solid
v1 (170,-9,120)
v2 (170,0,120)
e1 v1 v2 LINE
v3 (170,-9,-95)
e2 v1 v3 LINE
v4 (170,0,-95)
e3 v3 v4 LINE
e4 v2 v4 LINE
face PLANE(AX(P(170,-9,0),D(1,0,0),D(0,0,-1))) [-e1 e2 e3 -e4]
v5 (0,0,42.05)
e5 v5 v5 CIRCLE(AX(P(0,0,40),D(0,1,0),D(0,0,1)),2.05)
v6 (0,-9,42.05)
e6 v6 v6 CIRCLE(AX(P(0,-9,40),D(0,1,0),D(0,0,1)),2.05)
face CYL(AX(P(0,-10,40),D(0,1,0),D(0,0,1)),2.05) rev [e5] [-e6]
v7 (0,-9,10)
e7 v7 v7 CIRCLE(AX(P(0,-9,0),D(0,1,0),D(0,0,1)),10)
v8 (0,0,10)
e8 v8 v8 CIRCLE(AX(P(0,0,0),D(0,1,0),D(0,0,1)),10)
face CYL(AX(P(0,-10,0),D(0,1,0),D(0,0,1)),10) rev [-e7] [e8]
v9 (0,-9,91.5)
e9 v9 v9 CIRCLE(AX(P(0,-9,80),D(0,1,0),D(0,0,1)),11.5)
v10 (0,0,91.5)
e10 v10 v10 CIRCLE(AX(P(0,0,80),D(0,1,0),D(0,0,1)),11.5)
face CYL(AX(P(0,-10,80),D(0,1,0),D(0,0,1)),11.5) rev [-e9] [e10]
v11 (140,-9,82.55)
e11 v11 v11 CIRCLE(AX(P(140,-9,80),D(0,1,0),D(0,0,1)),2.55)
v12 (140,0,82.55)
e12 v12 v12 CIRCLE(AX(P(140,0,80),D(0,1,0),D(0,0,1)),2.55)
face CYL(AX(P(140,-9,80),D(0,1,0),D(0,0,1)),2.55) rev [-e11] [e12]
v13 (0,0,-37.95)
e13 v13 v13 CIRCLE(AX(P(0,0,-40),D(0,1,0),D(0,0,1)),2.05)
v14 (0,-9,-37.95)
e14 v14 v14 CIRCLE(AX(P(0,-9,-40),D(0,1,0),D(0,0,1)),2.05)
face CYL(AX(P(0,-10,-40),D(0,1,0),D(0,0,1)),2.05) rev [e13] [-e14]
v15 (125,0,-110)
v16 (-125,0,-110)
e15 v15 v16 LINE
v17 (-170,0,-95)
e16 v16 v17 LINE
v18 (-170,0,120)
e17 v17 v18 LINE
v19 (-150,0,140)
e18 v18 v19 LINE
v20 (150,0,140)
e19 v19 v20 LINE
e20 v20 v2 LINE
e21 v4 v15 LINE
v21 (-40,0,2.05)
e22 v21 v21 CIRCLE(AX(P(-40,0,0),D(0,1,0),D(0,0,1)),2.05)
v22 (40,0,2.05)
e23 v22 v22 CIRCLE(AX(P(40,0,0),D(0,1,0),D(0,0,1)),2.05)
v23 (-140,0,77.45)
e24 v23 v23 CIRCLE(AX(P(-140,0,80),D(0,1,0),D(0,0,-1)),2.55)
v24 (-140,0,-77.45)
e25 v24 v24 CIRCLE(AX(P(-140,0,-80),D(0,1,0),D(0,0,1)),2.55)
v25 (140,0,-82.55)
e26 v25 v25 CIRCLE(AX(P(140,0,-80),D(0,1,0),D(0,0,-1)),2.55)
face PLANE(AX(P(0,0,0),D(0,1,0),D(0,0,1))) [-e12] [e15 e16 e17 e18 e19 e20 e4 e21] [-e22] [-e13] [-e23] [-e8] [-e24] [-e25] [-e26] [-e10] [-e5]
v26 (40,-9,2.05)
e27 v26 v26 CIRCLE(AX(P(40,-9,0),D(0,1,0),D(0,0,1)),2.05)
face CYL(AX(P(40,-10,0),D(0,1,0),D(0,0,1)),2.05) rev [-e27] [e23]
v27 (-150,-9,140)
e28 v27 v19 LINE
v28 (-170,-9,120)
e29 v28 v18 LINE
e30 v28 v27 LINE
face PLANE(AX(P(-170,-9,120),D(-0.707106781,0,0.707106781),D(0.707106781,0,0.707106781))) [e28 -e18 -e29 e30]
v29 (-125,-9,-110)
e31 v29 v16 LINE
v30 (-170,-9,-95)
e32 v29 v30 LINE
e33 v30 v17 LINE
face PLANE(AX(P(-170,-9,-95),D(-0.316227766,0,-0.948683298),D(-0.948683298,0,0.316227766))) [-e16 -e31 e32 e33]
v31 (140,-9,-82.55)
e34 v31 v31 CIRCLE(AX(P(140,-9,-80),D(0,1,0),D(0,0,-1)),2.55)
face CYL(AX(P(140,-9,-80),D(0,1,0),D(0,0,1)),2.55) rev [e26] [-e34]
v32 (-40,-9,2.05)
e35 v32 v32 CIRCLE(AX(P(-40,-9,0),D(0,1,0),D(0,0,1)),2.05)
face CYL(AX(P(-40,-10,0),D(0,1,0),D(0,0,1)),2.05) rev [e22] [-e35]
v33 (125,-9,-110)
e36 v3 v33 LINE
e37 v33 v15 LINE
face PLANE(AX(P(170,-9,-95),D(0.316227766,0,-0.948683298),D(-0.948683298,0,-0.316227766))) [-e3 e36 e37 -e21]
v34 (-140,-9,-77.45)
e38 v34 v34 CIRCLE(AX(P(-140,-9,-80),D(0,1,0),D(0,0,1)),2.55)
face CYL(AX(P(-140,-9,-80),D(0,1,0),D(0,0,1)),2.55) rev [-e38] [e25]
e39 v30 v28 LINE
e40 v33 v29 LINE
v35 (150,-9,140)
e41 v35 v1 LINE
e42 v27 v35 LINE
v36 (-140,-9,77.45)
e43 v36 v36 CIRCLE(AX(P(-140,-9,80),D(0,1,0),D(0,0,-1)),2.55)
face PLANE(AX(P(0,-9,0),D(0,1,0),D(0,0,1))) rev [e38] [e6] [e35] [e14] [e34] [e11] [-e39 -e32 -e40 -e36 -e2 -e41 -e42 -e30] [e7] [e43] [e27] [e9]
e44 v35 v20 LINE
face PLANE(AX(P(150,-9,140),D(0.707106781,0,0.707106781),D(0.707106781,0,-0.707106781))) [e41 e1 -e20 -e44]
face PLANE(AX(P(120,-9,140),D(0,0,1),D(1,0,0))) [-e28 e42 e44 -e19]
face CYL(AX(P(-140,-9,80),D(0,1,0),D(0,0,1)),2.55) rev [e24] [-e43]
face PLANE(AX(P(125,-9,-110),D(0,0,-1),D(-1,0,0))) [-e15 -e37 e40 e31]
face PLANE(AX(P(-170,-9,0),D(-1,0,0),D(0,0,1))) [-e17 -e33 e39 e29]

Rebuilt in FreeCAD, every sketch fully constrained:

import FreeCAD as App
import Part
import Sketcher

V = App.Vector
Q = App.Units.Quantity


def add_polygon(sketch, points):
    """Adds a closed chain of lines whose ends are joined by coincident constraints."""
    first, n = sketch.GeometryCount, len(points)
    for a, b in zip(points, points[1:] + points[:1]):
        sketch.addGeometry(Part.LineSegment(App.Vector(*a, 0), App.Vector(*b, 0)), False)
    for i in range(n):
        sketch.addConstraint(Sketcher.Constraint("Coincident", first + i, 2, first + (i + 1) % n, 1))

doc = App.newDocument("Part")
body = doc.addObject("PartDesign::Body", "Body")

sketch1 = body.newObject("Sketcher::SketchObject", "Sketch")
sketch1.AttachmentSupport = (doc.getObject("XZ_Plane"), [""])
sketch1.MapMode = "FlatFace"
add_polygon(sketch1, [(125, -110), (-125, -110), (-170, -95), (-170, 120), (-150, 140), (150, 140), (170, 120), (170, -95)])
sketch1.addGeometry(Part.Circle(V(-140, 80, 0), V(0, 0, 1), 2.5), False)
sketch1.addGeometry(Part.Circle(V(140, 80, 0), V(0, 0, 1), 2.5), False)
sketch1.addGeometry(Part.Circle(V(-140, -80, 0), V(0, 0, 1), 2.5), False)
sketch1.addGeometry(Part.Circle(V(140, -80, 0), V(0, 0, 1), 2.5), False)
sketch1.addConstraint(Sketcher.Constraint("Horizontal", 0))
sketch1.addConstraint(Sketcher.Constraint("Vertical", 2))
sketch1.addConstraint(Sketcher.Constraint("Horizontal", 4))
sketch1.addConstraint(Sketcher.Constraint("Vertical", 6))
sketch1.addConstraint(Sketcher.Constraint("Equal", 8, 9))
sketch1.addConstraint(Sketcher.Constraint("Equal", 9, 10))
sketch1.addConstraint(Sketcher.Constraint("Equal", 10, 11))
sketch1.addConstraint(Sketcher.Constraint("Symmetric", 9, 3, 10, 3, -1, 1))
sketch1.addConstraint(Sketcher.Constraint("Symmetric", 8, 3, 11, 3, -1, 1))
sketch1.addConstraint(Sketcher.Constraint("Symmetric", 8, 3, 9, 3, -2))
sketch1.addConstraint(Sketcher.Constraint("Symmetric", 2, 2, 5, 2, -2))
sketch1.addConstraint(Sketcher.Constraint("Perpendicular", 3, 5))
sketch1.addConstraint(Sketcher.Constraint("Horizontal", 1, 2, 6, 2))
sketch1.addConstraint(Sketcher.Constraint("Equal", 3, 5))
sketch1.addConstraint(Sketcher.Constraint("Equal", 1, 7))
sketch1.addConstraint(Sketcher.Constraint("Diameter", 8, Q("5.1 mm")))
sketch1.addConstraint(Sketcher.Constraint("DistanceX", 0, 2, 0, 1, Q("250 mm")))
sketch1.addConstraint(Sketcher.Constraint("DistanceX", 4, 1, 4, 2, Q("300 mm")))
sketch1.addConstraint(Sketcher.Constraint("DistanceY", 2, 1, 2, 2, Q("215 mm")))
sketch1.addConstraint(Sketcher.Constraint("DistanceX", 8, 3, -1, 1, Q("140 mm")))
sketch1.addConstraint(Sketcher.Constraint("DistanceY", -1, 1, 8, 3, Q("80 mm")))
sketch1.addConstraint(Sketcher.Constraint("DistanceY", 0, 2, -1, 1, Q("110 mm")))
sketch1.addConstraint(Sketcher.Constraint("DistanceX", 1, 2, -1, 1, Q("170 mm")))
sketch1.addConstraint(Sketcher.Constraint("DistanceY", 1, 2, -1, 1, Q("95 mm")))
pad1 = body.newObject("PartDesign::Pad", "Pad")
pad1.Profile = sketch1
pad1.Length = 9

sketch2 = body.newObject("Sketcher::SketchObject", "Sketch001")
sketch2.AttachmentSupport = (doc.getObject("XZ_Plane"), [""])
sketch2.MapMode = "FlatFace"
sketch2.addGeometry(Part.Circle(V(0, 0, 0), V(0, 0, 1), 10), False)
sketch2.addGeometry(Part.Circle(V(0, 80, 0), V(0, 0, 1), 11.5), False)
sketch2.addGeometry(Part.Circle(V(0, -40, 0), V(0, 0, 1), 2), False)
sketch2.addGeometry(Part.Circle(V(40, 0, 0), V(0, 0, 1), 2), False)
sketch2.addGeometry(Part.Circle(V(0, 40, 0), V(0, 0, 1), 2), False)
sketch2.addGeometry(Part.Circle(V(-40, 0, 0), V(0, 0, 1), 2), False)
sketch2.addConstraint(Sketcher.Constraint("Coincident", 0, 3, -1, 1))
sketch2.addConstraint(Sketcher.Constraint("Equal", 2, 3))
sketch2.addConstraint(Sketcher.Constraint("Equal", 3, 4))
sketch2.addConstraint(Sketcher.Constraint("Equal", 4, 5))
sketch2.addConstraint(Sketcher.Constraint("Symmetric", 2, 3, 4, 3, -1, 1))
sketch2.addConstraint(Sketcher.Constraint("Symmetric", 3, 3, 5, 3, -1, 1))
sketch2.addConstraint(Sketcher.Constraint("PointOnObject", 1, 3, -2))
sketch2.addConstraint(Sketcher.Constraint("PointOnObject", 2, 3, -2))
sketch2.addConstraint(Sketcher.Constraint("PointOnObject", 3, 3, -1))
sketch2.addConstraint(Sketcher.Constraint("Diameter", 0, Q("20 mm")))
sketch2.addConstraint(Sketcher.Constraint("Diameter", 1, Q("23 mm")))
sketch2.addConstraint(Sketcher.Constraint("Diameter", 2, Q("4.1 mm")))
sketch2.addConstraint(Sketcher.Constraint("DistanceY", -1, 1, 1, 3, Q("80 mm")))
sketch2.addConstraint(Sketcher.Constraint("DistanceY", 2, 3, -1, 1, Q("40 mm")))
sketch2.addConstraint(Sketcher.Constraint("DistanceX", -1, 1, 3, 3, Q("40 mm")))
pocket1 = body.newObject("PartDesign::Pocket", "Pocket")
pocket1.Profile = sketch2
pocket1.Length = 10
pocket1.Reversed = True

doc.recompute()
